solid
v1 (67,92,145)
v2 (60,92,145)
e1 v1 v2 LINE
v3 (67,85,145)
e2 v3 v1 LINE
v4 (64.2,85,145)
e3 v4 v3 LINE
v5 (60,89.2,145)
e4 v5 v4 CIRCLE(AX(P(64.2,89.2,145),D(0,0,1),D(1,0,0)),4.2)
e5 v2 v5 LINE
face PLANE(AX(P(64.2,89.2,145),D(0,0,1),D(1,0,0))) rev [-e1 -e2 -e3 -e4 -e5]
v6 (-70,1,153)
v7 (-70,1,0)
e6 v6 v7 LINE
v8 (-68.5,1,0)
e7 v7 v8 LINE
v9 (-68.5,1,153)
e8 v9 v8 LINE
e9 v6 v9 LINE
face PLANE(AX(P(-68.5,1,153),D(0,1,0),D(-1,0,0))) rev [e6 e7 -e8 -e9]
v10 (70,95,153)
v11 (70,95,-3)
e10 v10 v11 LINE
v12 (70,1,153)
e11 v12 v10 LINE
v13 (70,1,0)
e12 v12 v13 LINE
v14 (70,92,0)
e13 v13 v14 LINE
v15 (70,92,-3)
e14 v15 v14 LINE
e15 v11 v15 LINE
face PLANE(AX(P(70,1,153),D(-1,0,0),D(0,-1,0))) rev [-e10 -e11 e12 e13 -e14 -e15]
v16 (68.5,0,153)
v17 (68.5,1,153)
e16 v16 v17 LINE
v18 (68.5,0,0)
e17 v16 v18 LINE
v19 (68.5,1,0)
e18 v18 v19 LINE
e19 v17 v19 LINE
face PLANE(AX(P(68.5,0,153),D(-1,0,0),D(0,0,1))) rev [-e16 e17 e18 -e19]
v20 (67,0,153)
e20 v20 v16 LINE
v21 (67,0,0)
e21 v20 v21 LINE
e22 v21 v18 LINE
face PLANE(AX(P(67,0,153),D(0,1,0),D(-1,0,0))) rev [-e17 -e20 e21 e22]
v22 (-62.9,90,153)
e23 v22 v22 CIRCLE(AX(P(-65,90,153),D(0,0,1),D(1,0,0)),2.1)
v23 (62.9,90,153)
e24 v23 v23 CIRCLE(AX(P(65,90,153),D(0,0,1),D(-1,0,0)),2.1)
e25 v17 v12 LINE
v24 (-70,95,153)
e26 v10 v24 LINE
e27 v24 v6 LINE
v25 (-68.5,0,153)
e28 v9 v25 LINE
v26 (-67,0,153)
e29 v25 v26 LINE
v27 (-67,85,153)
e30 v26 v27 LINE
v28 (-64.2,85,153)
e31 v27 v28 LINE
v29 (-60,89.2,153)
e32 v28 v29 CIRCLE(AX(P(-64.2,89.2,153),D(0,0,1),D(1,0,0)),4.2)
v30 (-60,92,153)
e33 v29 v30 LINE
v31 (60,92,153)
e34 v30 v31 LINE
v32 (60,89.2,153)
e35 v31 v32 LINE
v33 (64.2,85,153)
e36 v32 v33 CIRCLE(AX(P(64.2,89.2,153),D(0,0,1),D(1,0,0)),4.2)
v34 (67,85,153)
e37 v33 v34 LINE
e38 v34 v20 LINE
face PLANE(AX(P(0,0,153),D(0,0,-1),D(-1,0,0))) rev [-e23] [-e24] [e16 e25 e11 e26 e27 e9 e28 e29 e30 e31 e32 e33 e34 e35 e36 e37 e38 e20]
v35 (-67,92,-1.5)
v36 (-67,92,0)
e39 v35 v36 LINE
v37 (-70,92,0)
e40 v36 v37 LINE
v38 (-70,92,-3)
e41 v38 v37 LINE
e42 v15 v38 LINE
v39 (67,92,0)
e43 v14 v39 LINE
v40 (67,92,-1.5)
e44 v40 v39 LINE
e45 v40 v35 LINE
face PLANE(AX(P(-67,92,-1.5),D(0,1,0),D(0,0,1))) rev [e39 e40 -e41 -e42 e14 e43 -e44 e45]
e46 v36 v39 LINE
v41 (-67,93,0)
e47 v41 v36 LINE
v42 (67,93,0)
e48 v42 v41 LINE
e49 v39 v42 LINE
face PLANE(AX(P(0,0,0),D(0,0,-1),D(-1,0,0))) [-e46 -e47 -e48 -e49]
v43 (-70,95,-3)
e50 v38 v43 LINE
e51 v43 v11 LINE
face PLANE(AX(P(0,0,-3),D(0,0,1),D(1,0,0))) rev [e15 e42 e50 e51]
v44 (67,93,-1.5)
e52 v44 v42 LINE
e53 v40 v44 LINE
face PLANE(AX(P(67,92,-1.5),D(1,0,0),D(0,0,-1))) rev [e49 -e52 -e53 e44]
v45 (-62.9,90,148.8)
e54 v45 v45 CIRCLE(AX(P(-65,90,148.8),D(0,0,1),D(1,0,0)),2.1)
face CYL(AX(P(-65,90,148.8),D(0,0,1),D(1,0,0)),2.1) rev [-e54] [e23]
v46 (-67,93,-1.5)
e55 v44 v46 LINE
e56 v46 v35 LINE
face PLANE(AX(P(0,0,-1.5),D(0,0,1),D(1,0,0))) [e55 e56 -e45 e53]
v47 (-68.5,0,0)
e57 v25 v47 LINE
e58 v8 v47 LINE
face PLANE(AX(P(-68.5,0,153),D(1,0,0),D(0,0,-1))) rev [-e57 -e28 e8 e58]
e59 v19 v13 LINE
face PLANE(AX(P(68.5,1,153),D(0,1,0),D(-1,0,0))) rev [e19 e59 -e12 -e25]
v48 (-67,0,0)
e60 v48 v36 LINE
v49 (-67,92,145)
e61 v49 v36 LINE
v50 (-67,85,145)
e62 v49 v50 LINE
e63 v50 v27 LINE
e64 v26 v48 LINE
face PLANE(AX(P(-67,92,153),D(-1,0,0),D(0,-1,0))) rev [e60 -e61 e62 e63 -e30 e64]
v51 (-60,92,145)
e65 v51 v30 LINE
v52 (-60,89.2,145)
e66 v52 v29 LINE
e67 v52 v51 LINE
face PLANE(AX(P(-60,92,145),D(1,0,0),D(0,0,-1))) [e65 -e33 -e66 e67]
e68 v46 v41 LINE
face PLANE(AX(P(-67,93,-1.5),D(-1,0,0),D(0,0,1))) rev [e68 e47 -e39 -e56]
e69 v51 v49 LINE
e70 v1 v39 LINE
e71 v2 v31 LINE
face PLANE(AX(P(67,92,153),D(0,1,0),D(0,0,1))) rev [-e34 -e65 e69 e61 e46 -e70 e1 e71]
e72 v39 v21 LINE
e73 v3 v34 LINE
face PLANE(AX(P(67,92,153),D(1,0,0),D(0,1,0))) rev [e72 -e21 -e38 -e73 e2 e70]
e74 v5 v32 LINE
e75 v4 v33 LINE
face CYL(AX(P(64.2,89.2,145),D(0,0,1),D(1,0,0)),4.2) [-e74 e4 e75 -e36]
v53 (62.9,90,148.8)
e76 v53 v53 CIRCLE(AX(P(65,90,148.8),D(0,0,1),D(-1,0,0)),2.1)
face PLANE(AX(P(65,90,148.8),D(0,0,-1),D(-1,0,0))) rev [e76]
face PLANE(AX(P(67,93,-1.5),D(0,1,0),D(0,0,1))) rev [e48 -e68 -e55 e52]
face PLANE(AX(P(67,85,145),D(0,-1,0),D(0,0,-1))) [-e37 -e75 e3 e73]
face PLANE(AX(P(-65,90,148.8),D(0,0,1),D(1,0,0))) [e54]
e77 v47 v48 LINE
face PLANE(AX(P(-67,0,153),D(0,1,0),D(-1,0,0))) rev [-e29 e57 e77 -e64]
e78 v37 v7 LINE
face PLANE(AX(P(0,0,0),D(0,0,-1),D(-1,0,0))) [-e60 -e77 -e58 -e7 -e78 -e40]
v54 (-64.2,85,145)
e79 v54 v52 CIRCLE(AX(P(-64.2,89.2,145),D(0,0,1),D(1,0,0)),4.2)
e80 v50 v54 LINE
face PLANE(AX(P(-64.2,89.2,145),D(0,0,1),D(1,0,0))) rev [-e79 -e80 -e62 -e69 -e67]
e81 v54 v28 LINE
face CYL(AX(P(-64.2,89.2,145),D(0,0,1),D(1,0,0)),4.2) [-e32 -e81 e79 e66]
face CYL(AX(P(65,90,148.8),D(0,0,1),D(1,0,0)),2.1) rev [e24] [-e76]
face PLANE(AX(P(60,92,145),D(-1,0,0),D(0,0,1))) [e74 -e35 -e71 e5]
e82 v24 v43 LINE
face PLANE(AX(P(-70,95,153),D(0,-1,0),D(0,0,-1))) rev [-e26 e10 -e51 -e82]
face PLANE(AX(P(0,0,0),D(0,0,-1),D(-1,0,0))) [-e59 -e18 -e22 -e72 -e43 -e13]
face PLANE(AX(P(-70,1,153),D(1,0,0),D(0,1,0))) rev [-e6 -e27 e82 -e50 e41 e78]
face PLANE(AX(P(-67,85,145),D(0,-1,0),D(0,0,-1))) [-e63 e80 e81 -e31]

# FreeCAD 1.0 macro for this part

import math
import FreeCAD as App
import Part
import Sketcher


def add_polygon(sketch, points):
    """Adds a closed chain of lines whose ends are joined by coincident constraints."""
    first, n = sketch.GeometryCount, len(points)
    for a, b in zip(points, points[1:] + points[:1]):
        sketch.addGeometry(Part.LineSegment(App.Vector(*a, 0), App.Vector(*b, 0)), False)
    for i in range(n):
        sketch.addConstraint(Sketcher.Constraint("Coincident", first + i, 2, first + (i + 1) % n, 1))

doc = App.newDocument("Part")
body = doc.addObject("PartDesign::Body", "Body")

# Sketch on XY plane
sketch1 = body.newObject("Sketcher::SketchObject", "Sketch")
sketch1.AttachmentSupport = (doc.getObject("XY_Plane"), [""])
sketch1.MapMode = "FlatFace"
add_polygon(sketch1, [(-70, 95), (-70, 1), (-68.5, 1), (-68.5, 0), (-67, 0), (-67, 92), (67, 92), (67, 0), (68.5, 0), (68.5, 1), (70, 1), (70, 95)])  # lines 0-11
sketch1.addConstraint([
    Sketcher.Constraint("Vertical", 0),
    Sketcher.Constraint("Horizontal", 1),
    Sketcher.Constraint("Vertical", 2),
    Sketcher.Constraint("Horizontal", 3),
    Sketcher.Constraint("Vertical", 4),
    Sketcher.Constraint("Horizontal", 5),
    Sketcher.Constraint("Vertical", 6),
    Sketcher.Constraint("Horizontal", 7),
    Sketcher.Constraint("Vertical", 8),
    Sketcher.Constraint("Horizontal", 9),
    Sketcher.Constraint("Vertical", 10),
    Sketcher.Constraint("Horizontal", 11),
    Sketcher.Constraint("Symmetric", 3, 2, 6, 2, -1, 1),
    Sketcher.Constraint("Symmetric", 2, 2, 7, 2, -2),
    Sketcher.Constraint("Symmetric", 0, 2, 9, 2, -2),
    Sketcher.Constraint("Equal", 1, 3),
    Sketcher.Constraint("DistanceX", 5, 1, 5, 2, 134.0),
    Sketcher.Constraint("DistanceX", 11, 2, 11, 1, 140.0),
    Sketcher.Constraint("DistanceY", 0, 2, 0, 1, 94.0),
    Sketcher.Constraint("DistanceY", 2, 2, 2, 1, 1.0),
    Sketcher.Constraint("DistanceY", 4, 1, 4, 2, 92.0),
])
pad1 = body.newObject("PartDesign::Pad", "Pad")
pad1.Profile = sketch1
pad1.Length = 153

# Sketch on XY plane
sketch2 = body.newObject("Sketcher::SketchObject", "Sketch001")
sketch2.AttachmentSupport = (doc.getObject("XY_Plane"), [""])
sketch2.MapMode = "FlatFace"
add_polygon(sketch2, [(70, 95), (70, 92), (67, 92), (67, 93), (-67, 93), (-67, 92), (-70, 92), (-70, 95)])  # lines 0-7
sketch2.addConstraint([
    Sketcher.Constraint("Vertical", 0),
    Sketcher.Constraint("Horizontal", 1),
    Sketcher.Constraint("Vertical", 2),
    Sketcher.Constraint("Horizontal", 3),
    Sketcher.Constraint("Vertical", 4),
    Sketcher.Constraint("Horizontal", 5),
    Sketcher.Constraint("Vertical", 6),
    Sketcher.Constraint("Horizontal", 7),
    Sketcher.Constraint("Symmetric", 1, 2, 4, 2, -2),
    Sketcher.Constraint("Equal", 1, 5),
    Sketcher.Constraint("Equal", 5, 0),
    Sketcher.Constraint("DistanceX", 1, 2, 1, 1, 3.0),
    Sketcher.Constraint("DistanceX", 3, 2, 3, 1, 134.0),
    Sketcher.Constraint("DistanceY", 2, 1, 2, 2, 1.0),
    Sketcher.Constraint("DistanceY", -1, 1, 0, 2, 92.0),
])
pad2 = body.newObject("PartDesign::Pad", "Pad001")
pad2.Profile = sketch2
pad2.Length = 1.5
pad2.Reversed = True

# Sketch on XY plane
sketch3 = body.newObject("Sketcher::SketchObject", "Sketch002")
sketch3.AttachmentSupport = (doc.getObject("XY_Plane"), [""])
sketch3.MapMode = "FlatFace"
sketch3.AttachmentOffset = App.Placement(App.Vector(0, 0, -1.5), App.Rotation())
add_polygon(sketch3, [(70, 95), (70, 92), (-70, 92), (-70, 95)])  # lines 0-3
sketch3.addConstraint([
    Sketcher.Constraint("Vertical", 0),
    Sketcher.Constraint("Horizontal", 1),
    Sketcher.Constraint("Vertical", 2),
    Sketcher.Constraint("Horizontal", 3),
    Sketcher.Constraint("DistanceX", 1, 2, 1, 1, 140.0),
    Sketcher.Constraint("DistanceY", 0, 2, 0, 1, 3.0),
    Sketcher.Constraint("DistanceX", -1, 1, 0, 2, 70.0),
    Sketcher.Constraint("DistanceY", -1, 1, 0, 2, 92.0),
])
pad3 = body.newObject("PartDesign::Pad", "Pad002")
pad3.Profile = sketch3
pad3.Length = 1.5
pad3.Reversed = True

# Sketch on XY plane
sketch4 = body.newObject("Sketcher::SketchObject", "Sketch003")
sketch4.AttachmentSupport = (doc.getObject("XY_Plane"), [""])
sketch4.MapMode = "FlatFace"
sketch4.AttachmentOffset = App.Placement(App.Vector(0, 0, 153), App.Rotation())
sketch4.addGeometry([
    Part.LineSegment(App.Vector(-60, 92, 0), App.Vector(-67, 92, 0)),  # 0
    Part.LineSegment(App.Vector(-67, 92, 0), App.Vector(-67, 85, 0)),  # 1
    Part.LineSegment(App.Vector(-67, 85, 0), App.Vector(-64.2, 85, 0)),  # 2
    Part.ArcOfCircle(Part.Circle(App.Vector(-64.2, 89.2, 0), App.Vector(0, 0, 1), 4.2), math.radians(-90), math.radians(0)),  # 3
    Part.LineSegment(App.Vector(-60, 89.2, 0), App.Vector(-60, 92, 0)),  # 4
    Part.LineSegment(App.Vector(60, 92, 0), App.Vector(60, 89.2, 0)),  # 5
    Part.ArcOfCircle(Part.Circle(App.Vector(64.2, 89.2, 0), App.Vector(0, 0, 1), 4.2), math.radians(180), math.radians(270)),  # 6
    Part.LineSegment(App.Vector(64.2, 85, 0), App.Vector(67, 85, 0)),  # 7
    Part.LineSegment(App.Vector(67, 85, 0), App.Vector(67, 92, 0)),  # 8
    Part.LineSegment(App.Vector(67, 92, 0), App.Vector(60, 92, 0)),  # 9
], False)
sketch4.addConstraint([
    Sketcher.Constraint("Coincident", 0, 2, 1, 1),
    Sketcher.Constraint("Coincident", 1, 2, 2, 1),
    Sketcher.Constraint("Tangent", 2, 2, 3, 1),
    Sketcher.Constraint("Tangent", 3, 2, 4, 1),
    Sketcher.Constraint("Coincident", 4, 2, 0, 1),
    Sketcher.Constraint("Tangent", 5, 2, 6, 1),
    Sketcher.Constraint("Tangent", 6, 2, 7, 1),
    Sketcher.Constraint("Coincident", 7, 2, 8, 1),
    Sketcher.Constraint("Coincident", 8, 2, 9, 1),
    Sketcher.Constraint("Coincident", 9, 2, 5, 1),
    Sketcher.Constraint("Horizontal", 0),
    Sketcher.Constraint("Vertical", 1),
    Sketcher.Constraint("Horizontal", 2),
    Sketcher.Constraint("Vertical", 4),
    Sketcher.Constraint("Vertical", 5),
    Sketcher.Constraint("Horizontal", 7),
    Sketcher.Constraint("Vertical", 8),
    Sketcher.Constraint("Horizontal", 9),
    Sketcher.Constraint("Equal", 3, 6),
    Sketcher.Constraint("Symmetric", 3, 3, 6, 3, -2),
    Sketcher.Constraint("Symmetric", 0, 2, 8, 2, -2),
    Sketcher.Constraint("Equal", 9, 1),
    Sketcher.Constraint("Radius", 3, 4.2),
    Sketcher.Constraint("DistanceX", 0, 2, 0, 1, 7.0),
    Sketcher.Constraint("DistanceX", 0, 2, -1, 1, 67.0),
    Sketcher.Constraint("DistanceY", -1, 1, 0, 2, 92.0),
])
pad4 = body.newObject("PartDesign::Pad", "Pad003")
pad4.Profile = sketch4
pad4.Length = 8
pad4.Reversed = True

# Sketch on XY plane
sketch5 = body.newObject("Sketcher::SketchObject", "Sketch004")
sketch5.AttachmentSupport = (doc.getObject("XY_Plane"), [""])
sketch5.MapMode = "FlatFace"
sketch5.AttachmentOffset = App.Placement(App.Vector(0, 0, 153), App.Rotation())
sketch5.addGeometry([
    Part.Circle(App.Vector(-65, 90, 0), App.Vector(0, 0, 1), 2.1),
    Part.Circle(App.Vector(65, 90, 0), App.Vector(0, 0, 1), 2.1),
], False)
sketch5.addConstraint([
    Sketcher.Constraint("Equal", 0, 1),
    Sketcher.Constraint("Symmetric", 0, 3, 1, 3, -2),
    Sketcher.Constraint("Diameter", 0, 4.2),
    Sketcher.Constraint("DistanceX", 0, 3, -1, 1, 65.0),
    Sketcher.Constraint("DistanceY", -1, 1, 0, 3, 90.0),
])
pocket1 = body.newObject("PartDesign::Pocket", "Pocket")
pocket1.Profile = sketch5
pocket1.Length = 4.2

doc.recompute()
